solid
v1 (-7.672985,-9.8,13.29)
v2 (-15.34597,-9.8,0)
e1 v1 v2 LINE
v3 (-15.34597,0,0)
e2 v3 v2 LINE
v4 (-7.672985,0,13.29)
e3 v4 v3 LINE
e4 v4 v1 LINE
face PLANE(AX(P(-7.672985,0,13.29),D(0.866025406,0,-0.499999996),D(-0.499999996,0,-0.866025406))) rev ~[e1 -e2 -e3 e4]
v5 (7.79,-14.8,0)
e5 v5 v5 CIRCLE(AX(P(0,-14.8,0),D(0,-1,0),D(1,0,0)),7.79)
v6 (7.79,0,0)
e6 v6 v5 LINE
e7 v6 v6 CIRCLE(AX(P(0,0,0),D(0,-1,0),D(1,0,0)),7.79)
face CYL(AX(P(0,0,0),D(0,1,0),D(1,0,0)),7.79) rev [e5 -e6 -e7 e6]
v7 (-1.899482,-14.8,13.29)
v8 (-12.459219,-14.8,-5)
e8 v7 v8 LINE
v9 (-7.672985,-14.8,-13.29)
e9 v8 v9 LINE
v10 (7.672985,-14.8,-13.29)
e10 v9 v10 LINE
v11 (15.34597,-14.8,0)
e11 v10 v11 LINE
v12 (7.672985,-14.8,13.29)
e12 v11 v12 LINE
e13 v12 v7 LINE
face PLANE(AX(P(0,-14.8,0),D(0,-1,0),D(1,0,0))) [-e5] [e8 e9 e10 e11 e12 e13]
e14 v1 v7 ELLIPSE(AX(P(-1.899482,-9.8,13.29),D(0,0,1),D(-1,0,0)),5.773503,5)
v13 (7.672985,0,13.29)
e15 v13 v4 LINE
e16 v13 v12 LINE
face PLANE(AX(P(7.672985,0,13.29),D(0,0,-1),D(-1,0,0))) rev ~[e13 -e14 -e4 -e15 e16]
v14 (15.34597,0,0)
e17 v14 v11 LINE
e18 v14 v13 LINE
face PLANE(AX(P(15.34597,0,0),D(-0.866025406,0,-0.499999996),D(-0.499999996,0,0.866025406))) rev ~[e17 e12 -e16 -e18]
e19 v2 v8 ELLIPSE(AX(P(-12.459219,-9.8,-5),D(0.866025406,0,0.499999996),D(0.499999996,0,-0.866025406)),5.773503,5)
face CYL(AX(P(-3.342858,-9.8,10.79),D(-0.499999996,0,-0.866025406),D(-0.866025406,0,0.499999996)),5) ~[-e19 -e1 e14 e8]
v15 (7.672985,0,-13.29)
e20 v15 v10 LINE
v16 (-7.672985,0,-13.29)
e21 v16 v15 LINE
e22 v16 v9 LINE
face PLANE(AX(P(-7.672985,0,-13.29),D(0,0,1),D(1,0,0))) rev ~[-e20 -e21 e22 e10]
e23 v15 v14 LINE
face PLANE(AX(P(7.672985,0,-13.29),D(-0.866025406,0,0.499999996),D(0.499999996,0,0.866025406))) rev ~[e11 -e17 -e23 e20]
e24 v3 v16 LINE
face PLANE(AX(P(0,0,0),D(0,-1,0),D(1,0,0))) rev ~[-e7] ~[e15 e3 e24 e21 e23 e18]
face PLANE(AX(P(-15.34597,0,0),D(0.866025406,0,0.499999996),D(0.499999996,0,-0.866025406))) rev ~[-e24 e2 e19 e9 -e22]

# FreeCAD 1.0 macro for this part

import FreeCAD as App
import Part
import Sketcher
from FreeCAD import Vector
Q = App.Units.Quantity


def edges_at(feature, points):
    """Names of the edges that pass closest to the given points."""
    edges = feature.Shape.Edges
    near = lambda p: min(range(len(edges)), key=lambda i: edges[i].distToShape(Part.Vertex(*p))[0])
    return sorted({f"Edge{near(p) + 1}" for p in points})


def add_polygon(sketch, points):
    """Adds a closed chain of lines whose ends are joined by coincident constraints."""
    first, n = sketch.GeometryCount, len(points)
    for a, b in zip(points, points[1:] + points[:1]):
        sketch.addGeometry(Part.LineSegment(App.Vector(*a, 0), App.Vector(*b, 0)), False)
    for i in range(n):
        sketch.addConstraint(Sketcher.Constraint("Coincident", first + i, 2, first + (i + 1) % n, 1))

doc = App.newDocument("Part")
params = doc.addObject("Spreadsheet::Sheet", "Params")
for row, (alias, value) in enumerate([
    ("sketch1_diameter", "15.58 mm"),
    ("pad1_length", "14.8 mm"),
    ("fillet_radius", "5 mm"),
], start=1):
    params.set(f"A{row}", alias)
    params.set(f"B{row}", "=" + value)
    params.setAlias(f"B{row}", alias)

body = doc.addObject("PartDesign::Body", "Body")

sketch1 = body.newObject("Sketcher::SketchObject", "Sketch")
sketch1.AttachmentSupport = (doc.getObject("XZ_Plane"), [""])
sketch1.MapMode = "FlatFace"
add_polygon(sketch1, [(8, 13), (-8, 13), (-15, 0), (-8, -13), (8, -13), (15, 0)])
sketch1.addGeometry(Part.Circle(Vector(0, 0, 0), Vector(0, 0, 1), 8), False)
sketch1.addConstraint([
    Sketcher.Constraint("Horizontal", 0),
    Sketcher.Constraint("Horizontal", 3),
    Sketcher.Constraint("Coincident", 6, 3, -1, 1),
    Sketcher.Constraint("Symmetric", 0, 2, 3, 2, -1, 1),
    Sketcher.Constraint("Symmetric", 1, 2, 4, 2, -1, 1),
    Sketcher.Constraint("PointOnObject", 1, 2, -1),
    Sketcher.Constraint("Parallel", 2, 5),
    Sketcher.Constraint("Vertical", 0, 2, 2, 2),
    Sketcher.Constraint("Diameter", 6, 15.58),
    Sketcher.Constraint("Angle", 1, Q("-120 deg")),
    Sketcher.Constraint("DistanceY", -1, 1, 0, 2, 13.29),
    Sketcher.Constraint("DistanceX", 0, 2, 0, 1, 15.34597),
])
sketch1.setExpression("Constraints[14]", "Params.sketch1_diameter")
pad1 = body.newObject("PartDesign::Pad", "Pad")
pad1.Profile = sketch1
pad1.setExpression("Length", "Params.pad1_length")
doc.recompute()

fillet = body.newObject("PartDesign::Fillet", "Fillet")
fillet.Base = (pad1, edges_at(pad1, [(-11.509, -14.8, 6.645)]))
fillet.setExpression("Radius", "Params.fillet_radius")

doc.recompute()
